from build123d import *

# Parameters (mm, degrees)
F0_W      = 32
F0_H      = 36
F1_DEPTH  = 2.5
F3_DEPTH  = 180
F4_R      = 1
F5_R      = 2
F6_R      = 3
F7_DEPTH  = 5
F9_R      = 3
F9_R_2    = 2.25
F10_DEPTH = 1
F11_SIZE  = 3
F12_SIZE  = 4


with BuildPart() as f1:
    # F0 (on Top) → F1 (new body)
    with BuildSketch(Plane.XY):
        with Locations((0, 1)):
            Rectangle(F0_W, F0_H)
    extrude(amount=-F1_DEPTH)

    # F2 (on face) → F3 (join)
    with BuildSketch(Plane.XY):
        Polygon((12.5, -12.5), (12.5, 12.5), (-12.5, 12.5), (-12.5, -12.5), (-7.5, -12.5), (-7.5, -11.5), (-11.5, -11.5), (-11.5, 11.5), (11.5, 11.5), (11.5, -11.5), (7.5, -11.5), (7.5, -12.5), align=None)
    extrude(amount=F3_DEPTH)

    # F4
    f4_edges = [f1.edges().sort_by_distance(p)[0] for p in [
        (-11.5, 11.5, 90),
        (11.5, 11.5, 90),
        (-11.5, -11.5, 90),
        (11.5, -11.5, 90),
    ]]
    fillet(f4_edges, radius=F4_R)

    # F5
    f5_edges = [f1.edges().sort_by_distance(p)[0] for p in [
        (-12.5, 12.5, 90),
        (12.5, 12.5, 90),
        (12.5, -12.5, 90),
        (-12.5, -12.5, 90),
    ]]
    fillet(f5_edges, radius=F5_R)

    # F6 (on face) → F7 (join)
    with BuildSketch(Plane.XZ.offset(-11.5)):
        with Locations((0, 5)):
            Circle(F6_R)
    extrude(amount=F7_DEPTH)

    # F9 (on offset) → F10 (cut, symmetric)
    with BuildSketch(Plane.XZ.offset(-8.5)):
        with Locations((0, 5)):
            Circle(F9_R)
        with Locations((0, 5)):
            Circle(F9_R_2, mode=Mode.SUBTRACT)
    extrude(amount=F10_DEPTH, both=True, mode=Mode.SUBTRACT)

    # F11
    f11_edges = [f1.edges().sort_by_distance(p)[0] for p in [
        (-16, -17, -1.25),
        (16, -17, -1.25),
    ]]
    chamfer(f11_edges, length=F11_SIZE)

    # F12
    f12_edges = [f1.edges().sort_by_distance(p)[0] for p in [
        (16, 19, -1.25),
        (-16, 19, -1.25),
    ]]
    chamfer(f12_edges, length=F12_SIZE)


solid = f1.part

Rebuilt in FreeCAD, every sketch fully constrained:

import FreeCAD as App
import Part
import Sketcher
from FreeCAD import Vector
Q = App.Units.Quantity


def edges_at(feature, points):
    """Names of the edges that pass closest to the given points."""
    edges = feature.Shape.Edges
    near = lambda p: min(range(len(edges)), key=lambda i: edges[i].distToShape(Part.Vertex(*p))[0])
    return sorted({f"Edge{near(p) + 1}" for p in points})

doc = App.newDocument("Part")
params = doc.addObject("Spreadsheet::Sheet", "Params")
for row, (alias, value) in enumerate([
    ("sketch1_width", "32 mm"),
    ("sketch1_height", "36 mm"),
    ("pad1_length", "2.5 mm"),
    ("sketch2_width", "25 mm"),
    ("sketch2_width2", "5 mm"),
    ("sketch2_width3", "4 mm"),
    ("pad2_length", "180 mm"),
    ("fillet_radius", "1 mm"),
    ("fillet2_radius", "2 mm"),
    ("sketch3_diameter", "6 mm"),
    ("pad3_length", "5 mm"),
    ("sketch4_diameter", "6 mm"),
    ("sketch4_diameter2", "4.5 mm"),
    ("pocket1_length", "2 mm"),
    ("chamfer_size", "3 mm"),
    ("chamfer2_size", "4 mm"),
], start=1):
    params.set(f"A{row}", alias)
    params.set(f"B{row}", "=" + value)
    params.setAlias(f"B{row}", alias)

body = doc.addObject("PartDesign::Body", "Body")

# Sketch on XY plane
sketch1 = body.newObject("Sketcher::SketchObject", "Sketch")
sketch1.AttachmentSupport = (doc.getObject("XY_Plane"), [""])
sketch1.MapMode = "FlatFace"
sketch1.addGeometry(Part.LineSegment(Vector(-16, 19, 0), Vector(-16, -17, 0)), False)
sketch1.addGeometry(Part.LineSegment(Vector(-16, -17, 0), Vector(16, -17, 0)), False)
sketch1.addGeometry(Part.LineSegment(Vector(16, -17, 0), Vector(16, 19, 0)), False)
sketch1.addGeometry(Part.LineSegment(Vector(16, 19, 0), Vector(-16, 19, 0)), False)
sketch1.addConstraint(Sketcher.Constraint("Coincident", 0, 2, 1, 1))
sketch1.addConstraint(Sketcher.Constraint("Coincident", 1, 2, 2, 1))
sketch1.addConstraint(Sketcher.Constraint("Coincident", 2, 2, 3, 1))
sketch1.addConstraint(Sketcher.Constraint("Coincident", 3, 2, 0, 1))
sketch1.addConstraint(Sketcher.Constraint("Vertical", 0))
sketch1.addConstraint(Sketcher.Constraint("Horizontal", 1))
sketch1.addConstraint(Sketcher.Constraint("Vertical", 2))
sketch1.addConstraint(Sketcher.Constraint("Horizontal", 3))
sketch1.addConstraint(Sketcher.Constraint("DistanceX", 1, 1, 1, 2, Q("32 mm")))
sketch1.addConstraint(Sketcher.Constraint("DistanceY", 0, 2, 0, 1, Q("36 mm")))
sketch1.addConstraint(Sketcher.Constraint("DistanceX", 0, 2, -1, 1, Q("16 mm")))
sketch1.addConstraint(Sketcher.Constraint("DistanceY", 0, 2, -1, 1, Q("17 mm")))
sketch1.setExpression("Constraints[8]", "Params.sketch1_width")
sketch1.setExpression("Constraints[9]", "Params.sketch1_height")
pad1 = body.newObject("PartDesign::Pad", "Pad")
pad1.Profile = sketch1
pad1.setExpression("Length", "Params.pad1_length")
pad1.Reversed = True

# Sketch on XY plane
sketch2 = body.newObject("Sketcher::SketchObject", "Sketch001")
sketch2.AttachmentSupport = (doc.getObject("XY_Plane"), [""])
sketch2.MapMode = "FlatFace"
sketch2.addGeometry(Part.LineSegment(Vector(12.5, -12.5, 0), Vector(12.5, 12.5, 0)), False)
sketch2.addGeometry(Part.LineSegment(Vector(12.5, 12.5, 0), Vector(-12.5, 12.5, 0)), False)
sketch2.addGeometry(Part.LineSegment(Vector(-12.5, 12.5, 0), Vector(-12.5, -12.5, 0)), False)
sketch2.addGeometry(Part.LineSegment(Vector(-12.5, -12.5, 0), Vector(-7.5, -12.5, 0)), False)
sketch2.addGeometry(Part.LineSegment(Vector(-7.5, -12.5, 0), Vector(-7.5, -11.5, 0)), False)
sketch2.addGeometry(Part.LineSegment(Vector(-7.5, -11.5, 0), Vector(-11.5, -11.5, 0)), False)
sketch2.addGeometry(Part.LineSegment(Vector(-11.5, -11.5, 0), Vector(-11.5, 11.5, 0)), False)
sketch2.addGeometry(Part.LineSegment(Vector(-11.5, 11.5, 0), Vector(11.5, 11.5, 0)), False)
sketch2.addGeometry(Part.LineSegment(Vector(11.5, 11.5, 0), Vector(11.5, -11.5, 0)), False)
sketch2.addGeometry(Part.LineSegment(Vector(11.5, -11.5, 0), Vector(7.5, -11.5, 0)), False)
sketch2.addGeometry(Part.LineSegment(Vector(7.5, -11.5, 0), Vector(7.5, -12.5, 0)), False)
sketch2.addGeometry(Part.LineSegment(Vector(7.5, -12.5, 0), Vector(12.5, -12.5, 0)), False)
sketch2.addConstraint(Sketcher.Constraint("Coincident", 0, 2, 1, 1))
sketch2.addConstraint(Sketcher.Constraint("Coincident", 1, 2, 2, 1))
sketch2.addConstraint(Sketcher.Constraint("Coincident", 2, 2, 3, 1))
sketch2.addConstraint(Sketcher.Constraint("Coincident", 3, 2, 4, 1))
sketch2.addConstraint(Sketcher.Constraint("Coincident", 4, 2, 5, 1))
sketch2.addConstraint(Sketcher.Constraint("Coincident", 5, 2, 6, 1))
sketch2.addConstraint(Sketcher.Constraint("Coincident", 6, 2, 7, 1))
sketch2.addConstraint(Sketcher.Constraint("Coincident", 7, 2, 8, 1))
sketch2.addConstraint(Sketcher.Constraint("Coincident", 8, 2, 9, 1))
sketch2.addConstraint(Sketcher.Constraint("Coincident", 9, 2, 10, 1))
sketch2.addConstraint(Sketcher.Constraint("Coincident", 10, 2, 11, 1))
sketch2.addConstraint(Sketcher.Constraint("Coincident", 11, 2, 0, 1))
sketch2.addConstraint(Sketcher.Constraint("Vertical", 0))
sketch2.addConstraint(Sketcher.Constraint("Horizontal", 1))
sketch2.addConstraint(Sketcher.Constraint("Vertical", 2))
sketch2.addConstraint(Sketcher.Constraint("Horizontal", 3))
sketch2.addConstraint(Sketcher.Constraint("Vertical", 4))
sketch2.addConstraint(Sketcher.Constraint("Horizontal", 5))
sketch2.addConstraint(Sketcher.Constraint("Vertical", 6))
sketch2.addConstraint(Sketcher.Constraint("Horizontal", 7))
sketch2.addConstraint(Sketcher.Constraint("Vertical", 8))
sketch2.addConstraint(Sketcher.Constraint("Horizontal", 9))
sketch2.addConstraint(Sketcher.Constraint("Vertical", 10))
sketch2.addConstraint(Sketcher.Constraint("Horizontal", 11))
sketch2.addConstraint(Sketcher.Constraint("Symmetric", 0, 2, 2, 2, -1, 1))
sketch2.addConstraint(Sketcher.Constraint("Symmetric", 5, 2, 7, 2, -1, 1))
sketch2.addConstraint(Sketcher.Constraint("Symmetric", 4, 2, 9, 2, -2))
sketch2.addConstraint(Sketcher.Constraint("Horizontal", 3, 2, 10, 2))
sketch2.addConstraint(Sketcher.Constraint("Equal", 1, 0))
sketch2.addConstraint(Sketcher.Constraint("Equal", 7, 6))
sketch2.addConstraint(Sketcher.Constraint("DistanceX", 1, 2, 1, 1, Q("25 mm")))
sketch2.addConstraint(Sketcher.Constraint("DistanceX", 3, 1, 3, 2, Q("5 mm")))
sketch2.addConstraint(Sketcher.Constraint("DistanceX", 5, 2, 5, 1, Q("4 mm")))
sketch2.setExpression("Constraints[30]", "Params.sketch2_width")
sketch2.setExpression("Constraints[31]", "Params.sketch2_width2")
sketch2.setExpression("Constraints[32]", "Params.sketch2_width3")
pad2 = body.newObject("PartDesign::Pad", "Pad001")
pad2.Profile = sketch2
pad2.setExpression("Length", "Params.pad2_length")
doc.recompute()

fillet = body.newObject("PartDesign::Fillet", "Fillet")
fillet.Base = (pad2, edges_at(pad2, [
    (-11.5, 11.5, 90),
    (11.5, 11.5, 90),
    (-11.5, -11.5, 90),
    (11.5, -11.5, 90),
]))
fillet.setExpression("Radius", "Params.fillet_radius")
doc.recompute()

fillet2 = body.newObject("PartDesign::Fillet", "Fillet001")
fillet2.Base = (fillet, edges_at(fillet, [
    (-12.5, 12.5, 90),
    (12.5, 12.5, 90),
    (12.5, -12.5, 90),
    (-12.5, -12.5, 90),
]))
fillet2.setExpression("Radius", "Params.fillet2_radius")

# Sketch on XZ plane
sketch3 = body.newObject("Sketcher::SketchObject", "Sketch002")
sketch3.AttachmentSupport = (doc.getObject("XZ_Plane"), [""])
sketch3.MapMode = "FlatFace"
sketch3.AttachmentOffset = App.Placement(Vector(0, 0, -11.5), App.Rotation())
sketch3.addGeometry(Part.Circle(Vector(0, 5, 0), Vector(0, 0, 1), 3), False)
sketch3.addConstraint(Sketcher.Constraint("PointOnObject", 0, 3, -2))
sketch3.addConstraint(Sketcher.Constraint("Diameter", 0, Q("6 mm")))
sketch3.addConstraint(Sketcher.Constraint("DistanceY", -1, 1, 0, 3, Q("5 mm")))
sketch3.setExpression("Constraints[1]", "Params.sketch3_diameter")
pad3 = body.newObject("PartDesign::Pad", "Pad002")
pad3.Profile = sketch3
pad3.setExpression("Length", "Params.pad3_length")

# Sketch on XZ plane
sketch4 = body.newObject("Sketcher::SketchObject", "Sketch003")
sketch4.AttachmentSupport = (doc.getObject("XZ_Plane"), [""])
sketch4.MapMode = "FlatFace"
sketch4.AttachmentOffset = App.Placement(Vector(0, 0, -8.5), App.Rotation())
sketch4.addGeometry(Part.Circle(Vector(0, 5, 0), Vector(0, 0, 1), 3), False)
sketch4.addGeometry(Part.Circle(Vector(0, 5, 0), Vector(0, 0, 1), 2.2), False)
sketch4.addConstraint(Sketcher.Constraint("Coincident", 1, 3, 0, 3))
sketch4.addConstraint(Sketcher.Constraint("PointOnObject", 0, 3, -2))
sketch4.addConstraint(Sketcher.Constraint("Diameter", 0, Q("6 mm")))
sketch4.addConstraint(Sketcher.Constraint("Diameter", 1, Q("4.5 mm")))
sketch4.addConstraint(Sketcher.Constraint("DistanceY", -1, 1, 0, 3, Q("5 mm")))
sketch4.setExpression("Constraints[2]", "Params.sketch4_diameter")
sketch4.setExpression("Constraints[3]", "Params.sketch4_diameter2")
pocket1 = body.newObject("PartDesign::Pocket", "Pocket")
pocket1.Profile = sketch4
pocket1.setExpression("Length", "Params.pocket1_length")
pocket1.Midplane = True
doc.recompute()

chamfer = body.newObject("PartDesign::Chamfer", "Chamfer")
chamfer.Base = (pocket1, edges_at(pocket1, [(-16, -17, -1.25), (16, -17, -1.25)]))
chamfer.setExpression("Size", "Params.chamfer_size")
doc.recompute()

chamfer2 = body.newObject("PartDesign::Chamfer", "Chamfer001")
chamfer2.Base = (chamfer, edges_at(chamfer, [(16, 19, -1.25), (-16, 19, -1.25)]))
chamfer2.setExpression("Size", "Params.chamfer2_size")

doc.recompute()
